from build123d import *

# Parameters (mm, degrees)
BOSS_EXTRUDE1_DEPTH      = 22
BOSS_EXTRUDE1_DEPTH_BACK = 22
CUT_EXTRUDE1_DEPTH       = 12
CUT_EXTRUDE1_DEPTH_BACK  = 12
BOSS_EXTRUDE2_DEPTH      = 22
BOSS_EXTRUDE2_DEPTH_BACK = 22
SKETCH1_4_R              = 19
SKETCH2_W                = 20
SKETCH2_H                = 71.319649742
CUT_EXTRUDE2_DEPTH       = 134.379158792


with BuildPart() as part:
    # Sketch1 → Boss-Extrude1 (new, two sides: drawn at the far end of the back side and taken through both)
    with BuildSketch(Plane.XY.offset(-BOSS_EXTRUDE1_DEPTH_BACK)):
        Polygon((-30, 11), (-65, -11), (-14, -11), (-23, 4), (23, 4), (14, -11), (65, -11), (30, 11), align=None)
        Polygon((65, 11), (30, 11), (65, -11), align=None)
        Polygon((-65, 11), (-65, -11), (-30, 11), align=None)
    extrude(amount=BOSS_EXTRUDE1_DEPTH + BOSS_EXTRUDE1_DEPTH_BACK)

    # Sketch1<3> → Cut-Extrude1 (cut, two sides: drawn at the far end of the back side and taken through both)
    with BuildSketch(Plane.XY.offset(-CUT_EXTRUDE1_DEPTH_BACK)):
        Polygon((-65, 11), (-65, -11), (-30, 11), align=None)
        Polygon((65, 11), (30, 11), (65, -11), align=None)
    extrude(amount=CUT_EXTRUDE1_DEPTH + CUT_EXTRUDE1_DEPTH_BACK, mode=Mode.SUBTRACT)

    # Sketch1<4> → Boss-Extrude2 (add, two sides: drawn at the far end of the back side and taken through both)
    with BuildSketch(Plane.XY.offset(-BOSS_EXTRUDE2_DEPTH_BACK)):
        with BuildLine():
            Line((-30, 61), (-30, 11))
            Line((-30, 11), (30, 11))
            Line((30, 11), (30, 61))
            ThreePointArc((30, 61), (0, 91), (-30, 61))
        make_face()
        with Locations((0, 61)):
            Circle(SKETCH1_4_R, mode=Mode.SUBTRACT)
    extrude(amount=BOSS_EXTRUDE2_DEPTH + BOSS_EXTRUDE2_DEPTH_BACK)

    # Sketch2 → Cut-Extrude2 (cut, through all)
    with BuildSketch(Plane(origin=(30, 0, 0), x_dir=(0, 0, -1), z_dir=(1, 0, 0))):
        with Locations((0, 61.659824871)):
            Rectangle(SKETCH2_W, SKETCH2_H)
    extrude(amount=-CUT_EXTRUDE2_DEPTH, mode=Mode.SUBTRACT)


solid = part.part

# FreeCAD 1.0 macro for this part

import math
import FreeCAD as App
import Part
import Sketcher
from FreeCAD import Vector

doc = App.newDocument("Part")
body = doc.addObject("PartDesign::Body", "Body")

# Sketch on XY plane
sketch1 = body.newObject("Sketcher::SketchObject", "Sketch")
sketch1.AttachmentSupport = (doc.getObject("XY_Plane"), [""])
sketch1.MapMode = "FlatFace"
sketch1.addGeometry(Part.LineSegment(Vector(-65, -11, 0), Vector(-14, -11, 0)), False)
sketch1.addGeometry(Part.LineSegment(Vector(-14, -11, 0), Vector(-23, 4, 0)), False)
sketch1.addGeometry(Part.LineSegment(Vector(-23, 4, 0), Vector(23, 4, 0)), False)
sketch1.addGeometry(Part.LineSegment(Vector(23, 4, 0), Vector(14, -11, 0)), False)
sketch1.addGeometry(Part.LineSegment(Vector(14, -11, 0), Vector(65, -11, 0)), False)
sketch1.addGeometry(Part.LineSegment(Vector(65, -11, 0), Vector(65, 11, 0)), False)
sketch1.addGeometry(Part.LineSegment(Vector(65, 11, 0), Vector(-65, 11, 0)), False)
sketch1.addGeometry(Part.LineSegment(Vector(-65, 11, 0), Vector(-65, -11, 0)), False)
sketch1.addConstraint(Sketcher.Constraint("Coincident", 0, 2, 1, 1))
sketch1.addConstraint(Sketcher.Constraint("Coincident", 1, 2, 2, 1))
sketch1.addConstraint(Sketcher.Constraint("Coincident", 2, 2, 3, 1))
sketch1.addConstraint(Sketcher.Constraint("Coincident", 3, 2, 4, 1))
sketch1.addConstraint(Sketcher.Constraint("Coincident", 4, 2, 5, 1))
sketch1.addConstraint(Sketcher.Constraint("Coincident", 5, 2, 6, 1))
sketch1.addConstraint(Sketcher.Constraint("Coincident", 6, 2, 7, 1))
sketch1.addConstraint(Sketcher.Constraint("Coincident", 7, 2, 0, 1))
sketch1.addConstraint(Sketcher.Constraint("Horizontal", 0))
sketch1.addConstraint(Sketcher.Constraint("Horizontal", 2))
sketch1.addConstraint(Sketcher.Constraint("Horizontal", 4))
sketch1.addConstraint(Sketcher.Constraint("Vertical", 5))
sketch1.addConstraint(Sketcher.Constraint("Horizontal", 6))
sketch1.addConstraint(Sketcher.Constraint("Vertical", 7))
sketch1.addConstraint(Sketcher.Constraint("Symmetric", 4, 2, 6, 2, -1, 1))
sketch1.addConstraint(Sketcher.Constraint("Symmetric", 0, 2, 3, 2, -2))
sketch1.addConstraint(Sketcher.Constraint("Equal", 1, 3))
sketch1.addConstraint(Sketcher.Constraint("DistanceX", 0, 1, 0, 2, 51.0))
sketch1.addConstraint(Sketcher.Constraint("DistanceX", 2, 1, 2, 2, 46.0))
sketch1.addConstraint(Sketcher.Constraint("DistanceX", 6, 2, 6, 1, 130.0))
sketch1.addConstraint(Sketcher.Constraint("DistanceY", 5, 1, 5, 2, 22.0))
sketch1.addConstraint(Sketcher.Constraint("DistanceY", -1, 1, 1, 2, 4.0))
pad1 = body.newObject("PartDesign::Pad", "Pad")
pad1.Profile = sketch1
pad1.Type = "TwoLengths"
pad1.Length = 22
pad1.Length2 = 22

# Sketch on XY plane
sketch2 = body.newObject("Sketcher::SketchObject", "Sketch001")
sketch2.AttachmentSupport = (doc.getObject("XY_Plane"), [""])
sketch2.MapMode = "FlatFace"
sketch2.addGeometry(Part.LineSegment(Vector(-65, 11, 0), Vector(-65, -11, 0)), False)
sketch2.addGeometry(Part.LineSegment(Vector(-65, -11, 0), Vector(-30, 11, 0)), False)
sketch2.addGeometry(Part.LineSegment(Vector(-30, 11, 0), Vector(-65, 11, 0)), False)
sketch2.addGeometry(Part.LineSegment(Vector(65, 11, 0), Vector(30, 11, 0)), False)
sketch2.addGeometry(Part.LineSegment(Vector(30, 11, 0), Vector(65, -11, 0)), False)
sketch2.addGeometry(Part.LineSegment(Vector(65, -11, 0), Vector(65, 11, 0)), False)
sketch2.addConstraint(Sketcher.Constraint("Coincident", 0, 2, 1, 1))
sketch2.addConstraint(Sketcher.Constraint("Coincident", 1, 2, 2, 1))
sketch2.addConstraint(Sketcher.Constraint("Coincident", 2, 2, 0, 1))
sketch2.addConstraint(Sketcher.Constraint("Coincident", 3, 2, 4, 1))
sketch2.addConstraint(Sketcher.Constraint("Coincident", 4, 2, 5, 1))
sketch2.addConstraint(Sketcher.Constraint("Coincident", 5, 2, 3, 1))
sketch2.addConstraint(Sketcher.Constraint("Vertical", 0))
sketch2.addConstraint(Sketcher.Constraint("Horizontal", 2))
sketch2.addConstraint(Sketcher.Constraint("Horizontal", 3))
sketch2.addConstraint(Sketcher.Constraint("Vertical", 5))
sketch2.addConstraint(Sketcher.Constraint("Symmetric", 2, 2, 4, 2, -1, 1))
sketch2.addConstraint(Sketcher.Constraint("Symmetric", 1, 2, 3, 2, -2))
sketch2.addConstraint(Sketcher.Constraint("Horizontal", 0, 2, 4, 2))
sketch2.addConstraint(Sketcher.Constraint("DistanceX", 2, 2, 2, 1, 35.0))
sketch2.addConstraint(Sketcher.Constraint("DistanceY", 0, 2, 0, 1, 22.0))
sketch2.addConstraint(Sketcher.Constraint("DistanceX", 0, 2, -1, 1, 65.0))
pocket1 = body.newObject("PartDesign::Pocket", "Pocket")
pocket1.Profile = sketch2
pocket1.Type = "TwoLengths"
pocket1.Length = 12
pocket1.Length2 = 12
pocket1.Reversed = True

# Sketch on XY plane
sketch3 = body.newObject("Sketcher::SketchObject", "Sketch002")
sketch3.AttachmentSupport = (doc.getObject("XY_Plane"), [""])
sketch3.MapMode = "FlatFace"
sketch3.addGeometry(Part.LineSegment(Vector(-30, 61, 0), Vector(-30, 11, 0)), False)
sketch3.addGeometry(Part.LineSegment(Vector(-30, 11, 0), Vector(30, 11, 0)), False)
sketch3.addGeometry(Part.LineSegment(Vector(30, 11, 0), Vector(30, 61, 0)), False)
sketch3.addGeometry(Part.ArcOfCircle(Part.Circle(Vector(0, 61, 0), Vector(0, 0, 1), 30), math.radians(0), math.radians(180)), False)
sketch3.addGeometry(Part.Circle(Vector(0, 61, 0), Vector(0, 0, 1), 19), False)
sketch3.addConstraint(Sketcher.Constraint("Coincident", 0, 2, 1, 1))
sketch3.addConstraint(Sketcher.Constraint("Coincident", 1, 2, 2, 1))
sketch3.addConstraint(Sketcher.Constraint("Tangent", 2, 2, 3, 1))
sketch3.addConstraint(Sketcher.Constraint("Tangent", 3, 2, 0, 1))
sketch3.addConstraint(Sketcher.Constraint("Vertical", 0))
sketch3.addConstraint(Sketcher.Constraint("Horizontal", 1))
sketch3.addConstraint(Sketcher.Constraint("Vertical", 2))
sketch3.addConstraint(Sketcher.Constraint("Coincident", 4, 3, 3, 3))
sketch3.addConstraint(Sketcher.Constraint("PointOnObject", 3, 3, -2))
sketch3.addConstraint(Sketcher.Constraint("Diameter", 4, 38.0))
sketch3.addConstraint(Sketcher.Constraint("Radius", 3, 30.0))
sketch3.addConstraint(Sketcher.Constraint("DistanceY", 0, 2, 0, 1, 50.0))
sketch3.addConstraint(Sketcher.Constraint("DistanceY", -1, 1, 3, 3, 61.0))
pad2 = body.newObject("PartDesign::Pad", "Pad001")
pad2.Profile = sketch3
pad2.Type = "TwoLengths"
pad2.Length = 22
pad2.Length2 = 22

# Sketch on YZ plane
sketch4 = body.newObject("Sketcher::SketchObject", "Sketch003")
sketch4.AttachmentSupport = (doc.getObject("YZ_Plane"), [""])
sketch4.MapMode = "FlatFace"
sketch4.AttachmentOffset = App.Placement(Vector(0, 0, 30), App.Rotation())
sketch4.addGeometry(Part.LineSegment(Vector(97, 10, 0), Vector(26, 10, 0)), False)
sketch4.addGeometry(Part.LineSegment(Vector(26, 10, 0), Vector(26, -10, 0)), False)
sketch4.addGeometry(Part.LineSegment(Vector(26, -10, 0), Vector(97, -10, 0)), False)
sketch4.addGeometry(Part.LineSegment(Vector(97, -10, 0), Vector(97, 10, 0)), False)
sketch4.addConstraint(Sketcher.Constraint("Coincident", 0, 2, 1, 1))
sketch4.addConstraint(Sketcher.Constraint("Coincident", 1, 2, 2, 1))
sketch4.addConstraint(Sketcher.Constraint("Coincident", 2, 2, 3, 1))
sketch4.addConstraint(Sketcher.Constraint("Coincident", 3, 2, 0, 1))
sketch4.addConstraint(Sketcher.Constraint("Horizontal", 0))
sketch4.addConstraint(Sketcher.Constraint("Vertical", 1))
sketch4.addConstraint(Sketcher.Constraint("Horizontal", 2))
sketch4.addConstraint(Sketcher.Constraint("Vertical", 3))
sketch4.addConstraint(Sketcher.Constraint("DistanceY", 1, 2, 1, 1, 20.0))
sketch4.addConstraint(Sketcher.Constraint("DistanceX", -1, 1, 0, 2, 26.0))
sketch4.addConstraint(Sketcher.Constraint("DistanceY", -1, 1, 0, 2, 10.0))
sketch4.addConstraint(Sketcher.Constraint("DistanceX", 0, 2, 0, 1, 71.31965))
pocket2 = body.newObject("PartDesign::Pocket", "Pocket001")
pocket2.Profile = sketch4
pocket2.Type = "ThroughAll"

doc.recompute()
